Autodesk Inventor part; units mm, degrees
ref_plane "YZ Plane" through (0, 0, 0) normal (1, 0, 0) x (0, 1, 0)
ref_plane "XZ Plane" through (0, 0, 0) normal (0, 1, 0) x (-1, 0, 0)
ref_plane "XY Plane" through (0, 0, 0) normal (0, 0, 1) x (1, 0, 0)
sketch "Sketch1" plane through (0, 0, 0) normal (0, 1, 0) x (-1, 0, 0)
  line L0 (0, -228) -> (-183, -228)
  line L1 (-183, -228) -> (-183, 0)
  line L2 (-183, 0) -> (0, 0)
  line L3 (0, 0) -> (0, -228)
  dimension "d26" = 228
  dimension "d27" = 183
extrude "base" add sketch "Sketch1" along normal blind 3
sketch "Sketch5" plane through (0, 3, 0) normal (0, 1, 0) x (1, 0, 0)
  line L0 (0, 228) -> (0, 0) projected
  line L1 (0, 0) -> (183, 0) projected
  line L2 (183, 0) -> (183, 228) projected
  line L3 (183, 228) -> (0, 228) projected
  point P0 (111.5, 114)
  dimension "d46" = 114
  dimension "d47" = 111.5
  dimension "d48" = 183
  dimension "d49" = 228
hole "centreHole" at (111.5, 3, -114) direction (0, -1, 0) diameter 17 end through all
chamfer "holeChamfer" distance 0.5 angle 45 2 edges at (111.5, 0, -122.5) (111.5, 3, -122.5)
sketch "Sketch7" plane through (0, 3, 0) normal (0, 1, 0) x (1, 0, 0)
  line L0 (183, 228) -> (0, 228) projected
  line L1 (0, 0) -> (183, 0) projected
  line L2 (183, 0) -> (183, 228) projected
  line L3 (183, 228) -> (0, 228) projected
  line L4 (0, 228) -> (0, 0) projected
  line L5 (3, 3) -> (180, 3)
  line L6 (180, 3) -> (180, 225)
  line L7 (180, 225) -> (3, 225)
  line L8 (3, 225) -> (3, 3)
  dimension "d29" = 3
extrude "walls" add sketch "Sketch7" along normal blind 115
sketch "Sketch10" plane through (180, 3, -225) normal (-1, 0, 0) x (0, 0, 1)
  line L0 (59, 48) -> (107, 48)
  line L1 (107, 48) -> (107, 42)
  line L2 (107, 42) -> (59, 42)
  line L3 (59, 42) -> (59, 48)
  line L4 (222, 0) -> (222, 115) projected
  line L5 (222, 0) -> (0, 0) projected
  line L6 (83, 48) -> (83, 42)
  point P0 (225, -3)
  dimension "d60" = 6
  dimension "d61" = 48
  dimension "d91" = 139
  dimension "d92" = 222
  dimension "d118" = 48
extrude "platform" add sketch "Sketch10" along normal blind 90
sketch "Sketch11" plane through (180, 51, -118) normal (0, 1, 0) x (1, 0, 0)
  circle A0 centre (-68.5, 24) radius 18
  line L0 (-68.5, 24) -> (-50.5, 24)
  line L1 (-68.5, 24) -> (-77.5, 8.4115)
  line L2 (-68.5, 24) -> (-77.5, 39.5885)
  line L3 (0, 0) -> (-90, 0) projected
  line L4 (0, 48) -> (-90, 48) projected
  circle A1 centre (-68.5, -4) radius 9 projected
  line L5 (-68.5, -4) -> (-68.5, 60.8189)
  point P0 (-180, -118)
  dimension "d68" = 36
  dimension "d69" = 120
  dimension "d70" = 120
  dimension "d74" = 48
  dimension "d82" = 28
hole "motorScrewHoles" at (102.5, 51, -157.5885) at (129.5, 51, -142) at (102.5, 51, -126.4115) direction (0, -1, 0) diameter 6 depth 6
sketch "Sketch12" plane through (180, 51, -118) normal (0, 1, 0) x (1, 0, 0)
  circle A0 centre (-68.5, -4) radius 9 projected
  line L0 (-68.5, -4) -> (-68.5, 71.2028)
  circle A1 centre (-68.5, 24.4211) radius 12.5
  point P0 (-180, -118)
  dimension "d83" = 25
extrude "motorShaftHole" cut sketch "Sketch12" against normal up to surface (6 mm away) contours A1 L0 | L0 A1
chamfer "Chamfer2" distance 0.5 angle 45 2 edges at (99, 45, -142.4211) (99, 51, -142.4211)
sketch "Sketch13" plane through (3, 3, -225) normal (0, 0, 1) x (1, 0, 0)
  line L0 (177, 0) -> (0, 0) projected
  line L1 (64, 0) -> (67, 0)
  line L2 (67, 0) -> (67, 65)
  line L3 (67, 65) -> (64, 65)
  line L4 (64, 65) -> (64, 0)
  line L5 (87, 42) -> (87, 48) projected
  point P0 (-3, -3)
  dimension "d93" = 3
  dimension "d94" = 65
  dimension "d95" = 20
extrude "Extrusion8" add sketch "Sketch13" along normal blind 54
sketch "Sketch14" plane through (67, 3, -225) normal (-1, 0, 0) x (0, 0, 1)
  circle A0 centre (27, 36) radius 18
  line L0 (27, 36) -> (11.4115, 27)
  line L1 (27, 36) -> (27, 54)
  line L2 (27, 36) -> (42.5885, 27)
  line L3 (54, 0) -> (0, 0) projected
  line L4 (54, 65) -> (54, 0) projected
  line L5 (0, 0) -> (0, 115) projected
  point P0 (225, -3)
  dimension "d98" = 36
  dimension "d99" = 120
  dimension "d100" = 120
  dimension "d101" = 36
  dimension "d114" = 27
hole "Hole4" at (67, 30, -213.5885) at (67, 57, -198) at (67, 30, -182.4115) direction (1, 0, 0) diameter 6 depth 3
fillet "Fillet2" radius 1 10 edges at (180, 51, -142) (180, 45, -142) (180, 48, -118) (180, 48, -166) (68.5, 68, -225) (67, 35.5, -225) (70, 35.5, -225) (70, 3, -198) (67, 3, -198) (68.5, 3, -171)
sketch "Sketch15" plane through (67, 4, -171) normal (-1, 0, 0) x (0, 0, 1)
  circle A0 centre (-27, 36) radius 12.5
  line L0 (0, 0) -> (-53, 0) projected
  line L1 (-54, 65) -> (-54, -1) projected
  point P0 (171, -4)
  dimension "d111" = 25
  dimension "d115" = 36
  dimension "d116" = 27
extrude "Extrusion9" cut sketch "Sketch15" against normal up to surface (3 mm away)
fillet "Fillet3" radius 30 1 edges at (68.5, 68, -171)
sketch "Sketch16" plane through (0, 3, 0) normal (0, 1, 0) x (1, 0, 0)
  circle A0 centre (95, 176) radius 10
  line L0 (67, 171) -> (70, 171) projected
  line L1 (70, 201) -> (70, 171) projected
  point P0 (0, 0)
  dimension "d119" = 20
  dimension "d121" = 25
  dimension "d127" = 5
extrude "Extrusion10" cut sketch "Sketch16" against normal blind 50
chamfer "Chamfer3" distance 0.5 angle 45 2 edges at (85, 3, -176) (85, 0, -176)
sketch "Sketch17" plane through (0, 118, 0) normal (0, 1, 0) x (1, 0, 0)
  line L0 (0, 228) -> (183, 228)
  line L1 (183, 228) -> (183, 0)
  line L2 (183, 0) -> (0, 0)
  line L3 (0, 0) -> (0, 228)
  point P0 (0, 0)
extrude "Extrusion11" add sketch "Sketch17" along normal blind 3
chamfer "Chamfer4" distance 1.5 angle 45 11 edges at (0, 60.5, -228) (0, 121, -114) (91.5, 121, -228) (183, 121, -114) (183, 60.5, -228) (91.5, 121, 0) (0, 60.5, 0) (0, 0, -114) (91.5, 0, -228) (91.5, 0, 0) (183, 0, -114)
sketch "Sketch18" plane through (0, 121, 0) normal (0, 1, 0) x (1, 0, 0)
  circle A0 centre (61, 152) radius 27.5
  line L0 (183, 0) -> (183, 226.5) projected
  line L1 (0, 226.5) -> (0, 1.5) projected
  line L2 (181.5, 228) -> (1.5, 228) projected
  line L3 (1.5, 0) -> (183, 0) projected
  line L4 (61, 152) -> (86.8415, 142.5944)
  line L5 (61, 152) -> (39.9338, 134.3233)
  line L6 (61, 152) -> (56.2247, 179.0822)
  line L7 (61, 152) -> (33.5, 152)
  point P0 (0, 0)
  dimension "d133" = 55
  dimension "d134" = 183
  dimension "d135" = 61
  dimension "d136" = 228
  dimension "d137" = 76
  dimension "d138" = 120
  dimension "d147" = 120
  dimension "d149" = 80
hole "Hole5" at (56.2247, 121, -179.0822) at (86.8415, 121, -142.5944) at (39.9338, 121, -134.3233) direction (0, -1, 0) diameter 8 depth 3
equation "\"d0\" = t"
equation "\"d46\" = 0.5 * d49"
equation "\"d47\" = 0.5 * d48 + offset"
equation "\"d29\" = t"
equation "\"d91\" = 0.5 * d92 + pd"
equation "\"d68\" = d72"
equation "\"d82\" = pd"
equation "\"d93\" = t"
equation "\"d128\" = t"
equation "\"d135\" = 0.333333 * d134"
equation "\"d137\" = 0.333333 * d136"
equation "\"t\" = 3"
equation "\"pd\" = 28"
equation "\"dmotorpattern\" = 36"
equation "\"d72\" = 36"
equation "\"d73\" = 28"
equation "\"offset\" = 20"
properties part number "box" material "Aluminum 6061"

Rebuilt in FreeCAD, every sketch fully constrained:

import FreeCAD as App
import Part
import Sketcher
from FreeCAD import Vector
Q = App.Units.Quantity


def edges_at(feature, points):
    """Names of the edges that pass closest to the given points."""
    edges = feature.Shape.Edges
    near = lambda p: min(range(len(edges)), key=lambda i: edges[i].distToShape(Part.Vertex(*p))[0])
    return sorted({f"Edge{near(p) + 1}" for p in points})

doc = App.newDocument("Part")
body = doc.addObject("PartDesign::Body", "Body")

sketch1 = doc.addObject("Sketcher::SketchObject", "Sketch")
body.addObject(sketch1)
sketch1.AttachmentSupport = (doc.XZ_Plane, [""])
sketch1.MapMode = "FlatFace"
sketch1.addGeometry([
    Part.LineSegment(Vector(183, -228, 0), Vector(0, -228, 0)),
    Part.LineSegment(Vector(0, -228, 0), Vector(0, 0, 0)),
    Part.LineSegment(Vector(0, 0, 0), Vector(183, 0, 0)),
    Part.LineSegment(Vector(183, 0, 0), Vector(183, -228, 0)),
], False)
sketch1.addConstraint([
    Sketcher.Constraint("Coincident", 0, 2, 1, 1),
    Sketcher.Constraint("Coincident", 1, 2, 2, 1),
    Sketcher.Constraint("Coincident", 2, 2, 3, 1),
    Sketcher.Constraint("Coincident", 3, 2, 0, 1),
    Sketcher.Constraint("Horizontal", 0),
    Sketcher.Constraint("Vertical", 1),
    Sketcher.Constraint("Horizontal", 2),
    Sketcher.Constraint("Vertical", 3),
    Sketcher.Constraint("Coincident", 1, 2, -1, 1),
    Sketcher.Constraint("DistanceX", 0, 2, 0, 1, Q("183 mm")),
    Sketcher.Constraint("DistanceY", 1, 1, 1, 2, Q("228 mm")),
])
pad1 = doc.addObject("PartDesign::Pad", "Pad")
body.addObject(pad1)
pad1.Profile = sketch1
pad1.Length = 3
pad1.Reversed = True

sketch2 = doc.addObject("Sketcher::SketchObject", "Sketch001")
body.addObject(sketch2)
sketch2.AttachmentSupport = (doc.XZ_Plane, [""])
sketch2.MapMode = "FlatFace"
sketch2.AttachmentOffset = App.Placement(Vector(0, 0, -3), App.Rotation())
sketch2.addGeometry(Part.Circle(Vector(112, -114, 0), Vector(0, 0, 1), 8), False)
sketch2.addConstraint([
    Sketcher.Constraint("Diameter", 0, Q("17 mm")),
    Sketcher.Constraint("DistanceY", 0, 3, -1, 1, Q("114 mm")),
    Sketcher.Constraint("DistanceX", -1, 1, 0, 3, Q("111.5 mm")),
])
doc.recompute()
hole = doc.addObject("PartDesign::Hole", "Hole")
body.addObject(hole)
hole.Profile = sketch2
hole.ThreadType = "None"
hole.Diameter = 17
hole.DepthType = "ThroughAll"
hole.Reversed = True
doc.recompute()

chamfer = doc.addObject("PartDesign::Chamfer", "Chamfer")
body.addObject(chamfer)
chamfer.Base = (hole, edges_at(hole, [(111.5, 0, -122.5), (111.5, 3, -122.5)]))
chamfer.Size = 0.5

sketch3 = doc.addObject("Sketcher::SketchObject", "Sketch002")
body.addObject(sketch3)
sketch3.AttachmentSupport = (doc.XZ_Plane, [""])
sketch3.MapMode = "FlatFace"
sketch3.AttachmentOffset = App.Placement(Vector(0, 0, -3), App.Rotation())
sketch3.addGeometry([
    Part.LineSegment(Vector(183, 0, 0), Vector(183, -228, 0)),
    Part.LineSegment(Vector(183, -228, 0), Vector(0, -228, 0)),
    Part.LineSegment(Vector(0, -228, 0), Vector(0, 0, 0)),
    Part.LineSegment(Vector(0, 0, 0), Vector(183, 0, 0)),
    Part.LineSegment(Vector(180, -3, 0), Vector(3, -3, 0)),
    Part.LineSegment(Vector(3, -3, 0), Vector(3, -225, 0)),
    Part.LineSegment(Vector(3, -225, 0), Vector(180, -225, 0)),
    Part.LineSegment(Vector(180, -225, 0), Vector(180, -3, 0)),
], False)
sketch3.addConstraint([
    Sketcher.Constraint("Coincident", 0, 2, 1, 1),
    Sketcher.Constraint("Coincident", 1, 2, 2, 1),
    Sketcher.Constraint("Coincident", 2, 2, 3, 1),
    Sketcher.Constraint("Coincident", 3, 2, 0, 1),
    Sketcher.Constraint("Coincident", 4, 2, 5, 1),
    Sketcher.Constraint("Coincident", 5, 2, 6, 1),
    Sketcher.Constraint("Coincident", 6, 2, 7, 1),
    Sketcher.Constraint("Coincident", 7, 2, 4, 1),
    Sketcher.Constraint("Vertical", 0),
    Sketcher.Constraint("Horizontal", 1),
    Sketcher.Constraint("Vertical", 2),
    Sketcher.Constraint("Horizontal", 3),
    Sketcher.Constraint("Horizontal", 4),
    Sketcher.Constraint("Vertical", 5),
    Sketcher.Constraint("Horizontal", 6),
    Sketcher.Constraint("Vertical", 7),
    Sketcher.Constraint("Coincident", 2, 2, -1, 1),
    Sketcher.Constraint("DistanceX", -1, 1, 4, 2, Q("3 mm")),
    Sketcher.Constraint("DistanceY", 4, 2, -1, 1, Q("3 mm")),
    Sketcher.Constraint("DistanceY", 1, 2, 5, 2, Q("3 mm")),
    Sketcher.Constraint("DistanceX", 6, 2, 0, 2, Q("3 mm")),
    Sketcher.Constraint("DistanceX", 1, 2, 1, 1, Q("183 mm")),
    Sketcher.Constraint("DistanceY", 0, 2, 0, 1, Q("228 mm")),
])
pad2 = doc.addObject("PartDesign::Pad", "Pad001")
body.addObject(pad2)
pad2.Profile = sketch3
pad2.Length = 115
pad2.Reversed = True

sketch4 = doc.addObject("Sketcher::SketchObject", "Sketch003")
body.addObject(sketch4)
sketch4.AttachmentSupport = (doc.YZ_Plane, [""])
sketch4.MapMode = "FlatFace"
sketch4.AttachmentOffset = App.Placement(Vector(0, 0, 180), App.Rotation())
sketch4.addGeometry([
    Part.LineSegment(Vector(51, -166, 0), Vector(45, -166, 0)),
    Part.LineSegment(Vector(45, -166, 0), Vector(45, -118, 0)),
    Part.LineSegment(Vector(45, -118, 0), Vector(51, -118, 0)),
    Part.LineSegment(Vector(51, -118, 0), Vector(51, -166, 0)),
], False)
sketch4.addConstraint([
    Sketcher.Constraint("Coincident", 0, 2, 1, 1),
    Sketcher.Constraint("Coincident", 1, 2, 2, 1),
    Sketcher.Constraint("Coincident", 2, 2, 3, 1),
    Sketcher.Constraint("Coincident", 3, 2, 0, 1),
    Sketcher.Constraint("Horizontal", 0),
    Sketcher.Constraint("Vertical", 1),
    Sketcher.Constraint("Horizontal", 2),
    Sketcher.Constraint("Vertical", 3),
    Sketcher.Constraint("DistanceX", 0, 2, 0, 1, Q("6 mm")),
    Sketcher.Constraint("DistanceY", 1, 1, 1, 2, Q("48 mm")),
    Sketcher.Constraint("DistanceX", -1, 1, 0, 2, Q("45 mm")),
    Sketcher.Constraint("DistanceY", 0, 2, -1, 1, Q("166 mm")),
])
pad3 = doc.addObject("PartDesign::Pad", "Pad002")
body.addObject(pad3)
pad3.Profile = sketch4
pad3.Length = 90
pad3.Reversed = True

sketch5 = doc.addObject("Sketcher::SketchObject", "Sketch004")
body.addObject(sketch5)
sketch5.AttachmentSupport = (doc.XZ_Plane, [""])
sketch5.MapMode = "FlatFace"
sketch5.AttachmentOffset = App.Placement(Vector(0, 0, -51), App.Rotation())
sketch5.addGeometry([
    Part.Circle(Vector(102.5, -157.6, 0), Vector(0, 0, 1), 3),
    Part.Circle(Vector(129.5, -142, 0), Vector(0, 0, 1), 3),
    Part.Circle(Vector(102.5, -126.4, 0), Vector(0, 0, 1), 3),
], False)
sketch5.addConstraint([
    Sketcher.Constraint("Equal", 0, 1),
    Sketcher.Constraint("Equal", 1, 2),
    Sketcher.Constraint("Vertical", 0, 3, 2, 3),
    Sketcher.Constraint("Diameter", 0, Q("6 mm")),
    Sketcher.Constraint("DistanceY", 1, 3, -1, 1, Q("142 mm")),
    Sketcher.Constraint("DistanceX", 0, 3, 1, 3, Q("27 mm")),
    Sketcher.Constraint("DistanceX", -1, 1, 0, 3, Q("102.5 mm")),
    Sketcher.Constraint("DistanceY", 0, 3, 2, 3, Q("31.177 mm")),
    Sketcher.Constraint("DistanceY", 0, 3, -1, 1, Q("157.5885 mm")),
])
doc.recompute()
hole2 = doc.addObject("PartDesign::Hole", "Hole001")
body.addObject(hole2)
hole2.Profile = sketch5
hole2.ThreadType = "None"
hole2.Diameter = 6
hole2.DepthType = "Dimension"
hole2.Depth = 6
hole2.DrillPoint = "Flat"
hole2.Reversed = True

sketch6 = doc.addObject("Sketcher::SketchObject", "Sketch005")
body.addObject(sketch6)
sketch6.AttachmentSupport = (doc.XZ_Plane, [""])
sketch6.MapMode = "FlatFace"
sketch6.AttachmentOffset = App.Placement(Vector(0, 0, -51), App.Rotation())
sketch6.addGeometry(Part.Circle(Vector(112, -142, 0), Vector(0, 0, 1), 12), False)
sketch6.addConstraint([
    Sketcher.Constraint("Diameter", 0, Q("25 mm")),
    Sketcher.Constraint("DistanceX", -1, 1, 0, 3, Q("111.5 mm")),
    Sketcher.Constraint("DistanceY", 0, 3, -1, 1, Q("142.421 mm")),
])
pocket1 = doc.addObject("PartDesign::Pocket", "Pocket")
body.addObject(pocket1)
pocket1.Profile = sketch6
pocket1.Length = 6
pocket1.Reversed = True
doc.recompute()

chamfer2 = doc.addObject("PartDesign::Chamfer", "Chamfer001")
body.addObject(chamfer2)
chamfer2.Base = (pocket1, edges_at(pocket1, [(99, 45, -142.421), (99, 51, -142.421)]))
chamfer2.Size = 0.5

sketch7 = doc.addObject("Sketcher::SketchObject", "Sketch006")
body.addObject(sketch7)
sketch7.AttachmentSupport = (doc.XY_Plane, [""])
sketch7.MapMode = "FlatFace"
sketch7.AttachmentOffset = App.Placement(Vector(0, 0, -225), App.Rotation())
sketch7.addGeometry([
    Part.LineSegment(Vector(67, 3, 0), Vector(70, 3, 0)),
    Part.LineSegment(Vector(70, 3, 0), Vector(70, 68, 0)),
    Part.LineSegment(Vector(70, 68, 0), Vector(67, 68, 0)),
    Part.LineSegment(Vector(67, 68, 0), Vector(67, 3, 0)),
], False)
sketch7.addConstraint([
    Sketcher.Constraint("Coincident", 0, 2, 1, 1),
    Sketcher.Constraint("Coincident", 1, 2, 2, 1),
    Sketcher.Constraint("Coincident", 2, 2, 3, 1),
    Sketcher.Constraint("Coincident", 3, 2, 0, 1),
    Sketcher.Constraint("Horizontal", 0),
    Sketcher.Constraint("Vertical", 1),
    Sketcher.Constraint("Horizontal", 2),
    Sketcher.Constraint("Vertical", 3),
    Sketcher.Constraint("DistanceX", 0, 1, 0, 2, Q("3 mm")),
    Sketcher.Constraint("DistanceY", 1, 1, 1, 2, Q("65 mm")),
    Sketcher.Constraint("DistanceY", -1, 1, 0, 2, Q("3 mm")),
    Sketcher.Constraint("DistanceX", -1, 1, 0, 2, Q("70 mm")),
])
pad4 = doc.addObject("PartDesign::Pad", "Pad003")
body.addObject(pad4)
pad4.Profile = sketch7
pad4.Length = 54

sketch8 = doc.addObject("Sketcher::SketchObject", "Sketch007")
body.addObject(sketch8)
sketch8.AttachmentSupport = (doc.YZ_Plane, [""])
sketch8.MapMode = "FlatFace"
sketch8.AttachmentOffset = App.Placement(Vector(0, 0, 67), App.Rotation())
sketch8.addGeometry([
    Part.Circle(Vector(30, -213.6, 0), Vector(0, 0, 1), 3),
    Part.Circle(Vector(57, -198, 0), Vector(0, 0, 1), 3),
    Part.Circle(Vector(30, -182.4, 0), Vector(0, 0, 1), 3),
], False)
sketch8.addConstraint([
    Sketcher.Constraint("Equal", 0, 1),
    Sketcher.Constraint("Equal", 1, 2),
    Sketcher.Constraint("Vertical", 0, 3, 2, 3),
    Sketcher.Constraint("Diameter", 0, Q("6 mm")),
    Sketcher.Constraint("DistanceX", -1, 1, 0, 3, Q("30 mm")),
    Sketcher.Constraint("DistanceX", -1, 1, 1, 3, Q("57 mm")),
    Sketcher.Constraint("DistanceY", 1, 3, -1, 1, Q("198 mm")),
    Sketcher.Constraint("DistanceY", 0, 3, 2, 3, Q("31.177 mm")),
    Sketcher.Constraint("DistanceY", 0, 3, -1, 1, Q("213.5885 mm")),
])
doc.recompute()
hole3 = doc.addObject("PartDesign::Hole", "Hole002")
body.addObject(hole3)
hole3.Profile = sketch8
hole3.ThreadType = "None"
hole3.Diameter = 6
hole3.DepthType = "Dimension"
hole3.Depth = 3
hole3.DrillPoint = "Flat"
hole3.Reversed = True
doc.recompute()

fillet = doc.addObject("PartDesign::Fillet", "Fillet")
body.addObject(fillet)
fillet.Base = (hole3, edges_at(hole3, [
    (180, 51, -142),
    (180, 45, -142),
    (180, 48, -118),
    (180, 48, -166),
    (68.5, 68, -225),
    (67, 35.5, -225),
    (70, 35.5, -225),
    (70, 3, -198),
    (67, 3, -198),
    (68.5, 3, -171),
]))
fillet.Radius = 1

sketch9 = doc.addObject("Sketcher::SketchObject", "Sketch008")
body.addObject(sketch9)
sketch9.AttachmentSupport = (doc.YZ_Plane, [""])
sketch9.MapMode = "FlatFace"
sketch9.AttachmentOffset = App.Placement(Vector(0, 0, 67), App.Rotation())
sketch9.addGeometry(Part.Circle(Vector(40, -198, 0), Vector(0, 0, 1), 12), False)
sketch9.addConstraint([
    Sketcher.Constraint("Diameter", 0, Q("25 mm")),
    Sketcher.Constraint("DistanceX", -1, 1, 0, 3, Q("40 mm")),
    Sketcher.Constraint("DistanceY", 0, 3, -1, 1, Q("198 mm")),
])
pocket2 = doc.addObject("PartDesign::Pocket", "Pocket001")
body.addObject(pocket2)
pocket2.Profile = sketch9
pocket2.Length = 3
pocket2.Reversed = True
doc.recompute()

fillet2 = doc.addObject("PartDesign::Fillet", "Fillet001")
body.addObject(fillet2)
fillet2.Base = (pocket2, edges_at(pocket2, [(68.5, 68, -171)]))
fillet2.Radius = 30

sketch10 = doc.addObject("Sketcher::SketchObject", "Sketch009")
body.addObject(sketch10)
sketch10.AttachmentSupport = (doc.XZ_Plane, [""])
sketch10.MapMode = "FlatFace"
sketch10.AttachmentOffset = App.Placement(Vector(0, 0, -3), App.Rotation())
sketch10.addGeometry(Part.Circle(Vector(95, -176, 0), Vector(0, 0, 1), 10), False)
sketch10.addConstraint([
    Sketcher.Constraint("Diameter", 0, Q("20 mm")),
    Sketcher.Constraint("DistanceX", -1, 1, 0, 3, Q("95 mm")),
    Sketcher.Constraint("DistanceY", 0, 3, -1, 1, Q("176 mm")),
])
pocket3 = doc.addObject("PartDesign::Pocket", "Pocket002")
body.addObject(pocket3)
pocket3.Profile = sketch10
pocket3.Length = 50
pocket3.Reversed = True
doc.recompute()

chamfer3 = doc.addObject("PartDesign::Chamfer", "Chamfer002")
body.addObject(chamfer3)
chamfer3.Base = (pocket3, edges_at(pocket3, [(85, 3, -176), (85, 0, -176)]))
chamfer3.Size = 0.5

sketch11 = doc.addObject("Sketcher::SketchObject", "Sketch010")
body.addObject(sketch11)
sketch11.AttachmentSupport = (doc.XZ_Plane, [""])
sketch11.MapMode = "FlatFace"
sketch11.AttachmentOffset = App.Placement(Vector(0, 0, -118), App.Rotation())
sketch11.addGeometry([
    Part.LineSegment(Vector(183, -228, 0), Vector(0, -228, 0)),
    Part.LineSegment(Vector(0, -228, 0), Vector(0, 0, 0)),
    Part.LineSegment(Vector(0, 0, 0), Vector(183, 0, 0)),
    Part.LineSegment(Vector(183, 0, 0), Vector(183, -228, 0)),
], False)
sketch11.addConstraint([
    Sketcher.Constraint("Coincident", 0, 2, 1, 1),
    Sketcher.Constraint("Coincident", 1, 2, 2, 1),
    Sketcher.Constraint("Coincident", 2, 2, 3, 1),
    Sketcher.Constraint("Coincident", 3, 2, 0, 1),
    Sketcher.Constraint("Horizontal", 0),
    Sketcher.Constraint("Vertical", 1),
    Sketcher.Constraint("Horizontal", 2),
    Sketcher.Constraint("Vertical", 3),
    Sketcher.Constraint("Coincident", 1, 2, -1, 1),
    Sketcher.Constraint("DistanceX", 0, 2, 0, 1, Q("183 mm")),
    Sketcher.Constraint("DistanceY", 1, 1, 1, 2, Q("228 mm")),
])
pad5 = doc.addObject("PartDesign::Pad", "Pad004")
body.addObject(pad5)
pad5.Profile = sketch11
pad5.Length = 3
pad5.Reversed = True
doc.recompute()

chamfer4 = doc.addObject("PartDesign::Chamfer", "Chamfer003")
body.addObject(chamfer4)
chamfer4.Base = (pad5, edges_at(pad5, [
    (0, 60.5, -228),
    (0, 121, -114),
    (91.5, 121, -228),
    (183, 121, -114),
    (183, 60.5, -228),
    (91.5, 121, 0),
    (0, 60.5, 0),
    (0, 0, -114),
    (91.5, 0, -228),
    (91.5, 0, 0),
    (183, 0, -114),
]))
chamfer4.Size = 1.5

sketch12 = doc.addObject("Sketcher::SketchObject", "Sketch011")
body.addObject(sketch12)
sketch12.AttachmentSupport = (doc.XZ_Plane, [""])
sketch12.MapMode = "FlatFace"
sketch12.AttachmentOffset = App.Placement(Vector(0, 0, -121), App.Rotation())
sketch12.addGeometry([
    Part.Circle(Vector(56.2, -179.1, 0), Vector(0, 0, 1), 4),
    Part.Circle(Vector(86.8, -142.6, 0), Vector(0, 0, 1), 4),
    Part.Circle(Vector(39.9, -134.3, 0), Vector(0, 0, 1), 4),
], False)
sketch12.addConstraint([
    Sketcher.Constraint("Equal", 0, 1),
    Sketcher.Constraint("Equal", 1, 2),
    Sketcher.Constraint("Diameter", 0, Q("8 mm")),
    Sketcher.Constraint("DistanceY", 1, 3, 2, 3, Q("8.271 mm")),
    Sketcher.Constraint("DistanceX", 2, 3, 0, 3, Q("16.291 mm")),
    Sketcher.Constraint("DistanceY", 0, 3, 2, 3, Q("44.759 mm")),
    Sketcher.Constraint("DistanceX", -1, 1, 0, 3, Q("56.2247 mm")),
    Sketcher.Constraint("DistanceY", 0, 3, -1, 1, Q("179.0822 mm")),
    Sketcher.Constraint("DistanceX", -1, 1, 1, 3, Q("86.8415 mm")),
])
doc.recompute()
hole4 = doc.addObject("PartDesign::Hole", "Hole003")
body.addObject(hole4)
hole4.Profile = sketch12
hole4.ThreadType = "None"
hole4.Diameter = 8
hole4.DepthType = "Dimension"
hole4.Depth = 3
hole4.DrillPoint = "Flat"
hole4.Reversed = True

doc.recompute()
